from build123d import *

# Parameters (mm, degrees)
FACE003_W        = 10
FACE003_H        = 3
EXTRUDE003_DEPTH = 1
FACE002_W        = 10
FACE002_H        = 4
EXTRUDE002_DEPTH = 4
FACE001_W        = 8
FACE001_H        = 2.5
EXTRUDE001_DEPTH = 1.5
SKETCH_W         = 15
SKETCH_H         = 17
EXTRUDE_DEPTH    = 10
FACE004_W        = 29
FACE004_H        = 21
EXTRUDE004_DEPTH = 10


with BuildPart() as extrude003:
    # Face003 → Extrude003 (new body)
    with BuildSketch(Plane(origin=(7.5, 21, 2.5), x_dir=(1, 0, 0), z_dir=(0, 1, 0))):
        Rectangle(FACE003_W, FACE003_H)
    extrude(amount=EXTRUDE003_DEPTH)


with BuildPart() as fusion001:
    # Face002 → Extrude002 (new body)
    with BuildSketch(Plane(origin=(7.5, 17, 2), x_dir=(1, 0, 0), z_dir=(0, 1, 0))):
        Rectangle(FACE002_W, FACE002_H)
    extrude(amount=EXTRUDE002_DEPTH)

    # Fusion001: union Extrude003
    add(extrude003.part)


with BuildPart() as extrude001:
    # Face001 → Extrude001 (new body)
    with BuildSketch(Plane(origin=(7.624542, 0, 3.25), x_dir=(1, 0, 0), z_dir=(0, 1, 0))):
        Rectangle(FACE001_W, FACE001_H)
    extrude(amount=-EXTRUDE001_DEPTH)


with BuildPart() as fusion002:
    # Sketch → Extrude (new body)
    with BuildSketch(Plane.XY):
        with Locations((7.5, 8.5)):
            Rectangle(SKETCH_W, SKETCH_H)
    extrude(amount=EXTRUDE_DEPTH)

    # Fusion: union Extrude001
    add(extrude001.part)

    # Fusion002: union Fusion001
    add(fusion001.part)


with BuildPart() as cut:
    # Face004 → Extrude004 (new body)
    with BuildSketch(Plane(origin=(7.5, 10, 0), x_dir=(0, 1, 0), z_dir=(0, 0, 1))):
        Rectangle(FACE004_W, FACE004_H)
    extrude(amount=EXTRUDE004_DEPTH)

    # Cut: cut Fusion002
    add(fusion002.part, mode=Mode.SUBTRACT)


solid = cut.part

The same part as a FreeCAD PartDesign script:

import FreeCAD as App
import Part
import Sketcher
from FreeCAD import Vector
Q = App.Units.Quantity


def add_polygon(sketch, points):
    """Adds a closed chain of lines whose ends are joined by coincident constraints."""
    first, n = sketch.GeometryCount, len(points)
    for a, b in zip(points, points[1:] + points[:1]):
        sketch.addGeometry(Part.LineSegment(App.Vector(*a, 0), App.Vector(*b, 0)), False)
    for i in range(n):
        sketch.addConstraint(Sketcher.Constraint("Coincident", first + i, 2, first + (i + 1) % n, 1))

doc = App.newDocument("Part")
body = doc.addObject("PartDesign::Body", "Body")

# Sketch on XZ plane
sketch1 = doc.addObject("Sketcher::SketchObject", "Sketch")
body.addObject(sketch1)
sketch1.AttachmentSupport = (doc.XZ_Plane, [""])
sketch1.MapMode = "FlatFace"
sketch1.AttachmentOffset = App.Placement(Vector(0, 0, -21), App.Rotation())
add_polygon(sketch1, [(2.5, 1), (2.5, 4), (12.5, 4), (12.5, 1)])  # lines 0-3
sketch1.addConstraint(Sketcher.Constraint("Vertical", 0))
sketch1.addConstraint(Sketcher.Constraint("Horizontal", 1))
sketch1.addConstraint(Sketcher.Constraint("Vertical", 2))
sketch1.addConstraint(Sketcher.Constraint("Horizontal", 3))
sketch1.addConstraint(Sketcher.Constraint("DistanceX", 1, 1, 1, 2, Q("10 mm")))
sketch1.addConstraint(Sketcher.Constraint("DistanceY", 0, 1, 0, 2, Q("3 mm")))
sketch1.addConstraint(Sketcher.Constraint("DistanceY", -1, 1, 0, 2, Q("4 mm")))
sketch1.addConstraint(Sketcher.Constraint("DistanceX", -1, 1, 0, 2, Q("2.5 mm")))
pad1 = doc.addObject("PartDesign::Pad", "Pad")
body.addObject(pad1)
pad1.Profile = sketch1
pad1.Length = 1
pad1.Reversed = True
body2 = doc.addObject("PartDesign::Body", "Body001")

# Sketch on XZ plane
sketch2 = doc.addObject("Sketcher::SketchObject", "Sketch001")
body2.addObject(sketch2)
sketch2.AttachmentSupport = (doc.getObject("XZ_Plane001"), [""])
sketch2.MapMode = "FlatFace"
sketch2.AttachmentOffset = App.Placement(Vector(0, 0, -17), App.Rotation())
add_polygon(sketch2, [(2.5, 0), (2.5, 4), (12.5, 4), (12.5, 0)])  # lines 0-3
sketch2.addConstraint(Sketcher.Constraint("Vertical", 0))
sketch2.addConstraint(Sketcher.Constraint("Horizontal", 1))
sketch2.addConstraint(Sketcher.Constraint("Vertical", 2))
sketch2.addConstraint(Sketcher.Constraint("Horizontal", 3))
sketch2.addConstraint(Sketcher.Constraint("PointOnObject", 2, 2, -1))
sketch2.addConstraint(Sketcher.Constraint("DistanceX", 1, 1, 1, 2, Q("10 mm")))
sketch2.addConstraint(Sketcher.Constraint("DistanceY", 0, 1, 0, 2, Q("4 mm")))
sketch2.addConstraint(Sketcher.Constraint("DistanceX", -1, 1, 0, 2, Q("2.5 mm")))
pad2 = doc.addObject("PartDesign::Pad", "Pad001")
body2.addObject(pad2)
pad2.Profile = sketch2
pad2.Length = 4
pad2.Reversed = True
doc.recompute()

boolean = doc.addObject("PartDesign::Boolean", "Boolean")
body2.addObject(boolean)
boolean.Type = "Fuse"
boolean.addObjects([body])
body3 = doc.addObject("PartDesign::Body", "Body002")

# Sketch on XZ plane
sketch3 = doc.addObject("Sketcher::SketchObject", "Sketch002")
body3.addObject(sketch3)
sketch3.AttachmentSupport = (doc.getObject("XZ_Plane002"), [""])
sketch3.MapMode = "FlatFace"
add_polygon(sketch3, [(3.624542, 2), (3.624542, 4.5), (11.624542, 4.5), (11.624542, 2)])  # lines 0-3
sketch3.addConstraint(Sketcher.Constraint("Vertical", 0))
sketch3.addConstraint(Sketcher.Constraint("Horizontal", 1))
sketch3.addConstraint(Sketcher.Constraint("Vertical", 2))
sketch3.addConstraint(Sketcher.Constraint("Horizontal", 3))
sketch3.addConstraint(Sketcher.Constraint("DistanceX", 1, 1, 1, 2, Q("8 mm")))
sketch3.addConstraint(Sketcher.Constraint("DistanceY", 0, 1, 0, 2, Q("2.5 mm")))
sketch3.addConstraint(Sketcher.Constraint("DistanceY", -1, 1, 2, 2, Q("2 mm")))
sketch3.addConstraint(Sketcher.Constraint("DistanceX", -1, 1, 0, 2, Q("3.624542 mm")))
pad3 = doc.addObject("PartDesign::Pad", "Pad002")
body3.addObject(pad3)
pad3.Profile = sketch3
pad3.Length = 1.5
body4 = doc.addObject("PartDesign::Body", "Body003")

# Sketch on XY plane
sketch4 = doc.addObject("Sketcher::SketchObject", "Sketch003")
body4.addObject(sketch4)
sketch4.AttachmentSupport = (doc.getObject("XY_Plane003"), [""])
sketch4.MapMode = "FlatFace"
add_polygon(sketch4, [(0, 17), (0, 0), (15, 0), (15, 17)])  # lines 0-3
sketch4.addConstraint(Sketcher.Constraint("Vertical", 0))
sketch4.addConstraint(Sketcher.Constraint("Horizontal", 1))
sketch4.addConstraint(Sketcher.Constraint("Vertical", 2))
sketch4.addConstraint(Sketcher.Constraint("Horizontal", 3))
sketch4.addConstraint(Sketcher.Constraint("Coincident", 0, 2, -1, 1))
sketch4.addConstraint(Sketcher.Constraint("DistanceX", 1, 1, 1, 2, Q("15 mm")))
sketch4.addConstraint(Sketcher.Constraint("DistanceY", 0, 2, 0, 1, Q("17 mm")))
pad4 = doc.addObject("PartDesign::Pad", "Pad003")
body4.addObject(pad4)
pad4.Profile = sketch4
pad4.Length = 10
doc.recompute()

boolean2 = doc.addObject("PartDesign::Boolean", "Boolean001")
body4.addObject(boolean2)
boolean2.Type = "Fuse"
boolean2.addObjects([body3])
doc.recompute()

boolean3 = doc.addObject("PartDesign::Boolean", "Boolean002")
body4.addObject(boolean3)
boolean3.Type = "Fuse"
boolean3.addObjects([body2])
body5 = doc.addObject("PartDesign::Body", "Body004")

# Sketch on XY plane
sketch5 = doc.addObject("Sketcher::SketchObject", "Sketch004")
body5.addObject(sketch5)
sketch5.AttachmentSupport = (doc.getObject("XY_Plane004"), [""])
sketch5.MapMode = "FlatFace"
add_polygon(sketch5, [(-3, -4.5), (18, -4.5), (18, 24.5), (-3, 24.5)])  # lines 0-3
sketch5.addConstraint(Sketcher.Constraint("Horizontal", 0))
sketch5.addConstraint(Sketcher.Constraint("Vertical", 1))
sketch5.addConstraint(Sketcher.Constraint("Horizontal", 2))
sketch5.addConstraint(Sketcher.Constraint("Vertical", 3))
sketch5.addConstraint(Sketcher.Constraint("DistanceX", 0, 1, 0, 2, Q("21 mm")))
sketch5.addConstraint(Sketcher.Constraint("DistanceY", 1, 1, 1, 2, Q("29 mm")))
sketch5.addConstraint(Sketcher.Constraint("DistanceX", -1, 1, 0, 2, Q("18 mm")))
sketch5.addConstraint(Sketcher.Constraint("DistanceY", 0, 2, -1, 1, Q("4.5 mm")))
pad5 = doc.addObject("PartDesign::Pad", "Pad004")
body5.addObject(pad5)
pad5.Profile = sketch5
pad5.Length = 10
doc.recompute()

boolean4 = doc.addObject("PartDesign::Boolean", "Boolean003")
body5.addObject(boolean4)
boolean4.Type = "Cut"
boolean4.addObjects([body4])

doc.recompute()
